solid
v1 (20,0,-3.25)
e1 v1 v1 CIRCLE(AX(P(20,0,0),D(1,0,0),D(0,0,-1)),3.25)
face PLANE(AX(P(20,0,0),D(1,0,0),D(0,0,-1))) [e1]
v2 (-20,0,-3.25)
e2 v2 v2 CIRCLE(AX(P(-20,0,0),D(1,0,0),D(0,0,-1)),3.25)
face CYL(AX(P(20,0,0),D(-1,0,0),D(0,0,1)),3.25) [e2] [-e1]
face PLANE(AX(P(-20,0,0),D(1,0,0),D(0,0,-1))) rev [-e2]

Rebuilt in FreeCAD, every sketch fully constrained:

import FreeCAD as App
import Part
import Sketcher

V = App.Vector

doc = App.newDocument("Part")
body = doc.addObject("PartDesign::Body", "Body")

sketch1 = body.newObject("Sketcher::SketchObject", "Sketch")
sketch1.AttachmentSupport = (doc.getObject("YZ_Plane"), [""])
sketch1.MapMode = "FlatFace"
sketch1.addGeometry(Part.Circle(V(0, 0, 0), V(0, 0, 1), 3.2), False)
sketch1.addConstraint([
    Sketcher.Constraint("Coincident", 0, 3, -1, 1),
    Sketcher.Constraint("Diameter", 0, 6.5),
])
pad1 = body.newObject("PartDesign::Pad", "Pad")
pad1.Profile = sketch1
pad1.Length = 40
pad1.Midplane = True

doc.recompute()
